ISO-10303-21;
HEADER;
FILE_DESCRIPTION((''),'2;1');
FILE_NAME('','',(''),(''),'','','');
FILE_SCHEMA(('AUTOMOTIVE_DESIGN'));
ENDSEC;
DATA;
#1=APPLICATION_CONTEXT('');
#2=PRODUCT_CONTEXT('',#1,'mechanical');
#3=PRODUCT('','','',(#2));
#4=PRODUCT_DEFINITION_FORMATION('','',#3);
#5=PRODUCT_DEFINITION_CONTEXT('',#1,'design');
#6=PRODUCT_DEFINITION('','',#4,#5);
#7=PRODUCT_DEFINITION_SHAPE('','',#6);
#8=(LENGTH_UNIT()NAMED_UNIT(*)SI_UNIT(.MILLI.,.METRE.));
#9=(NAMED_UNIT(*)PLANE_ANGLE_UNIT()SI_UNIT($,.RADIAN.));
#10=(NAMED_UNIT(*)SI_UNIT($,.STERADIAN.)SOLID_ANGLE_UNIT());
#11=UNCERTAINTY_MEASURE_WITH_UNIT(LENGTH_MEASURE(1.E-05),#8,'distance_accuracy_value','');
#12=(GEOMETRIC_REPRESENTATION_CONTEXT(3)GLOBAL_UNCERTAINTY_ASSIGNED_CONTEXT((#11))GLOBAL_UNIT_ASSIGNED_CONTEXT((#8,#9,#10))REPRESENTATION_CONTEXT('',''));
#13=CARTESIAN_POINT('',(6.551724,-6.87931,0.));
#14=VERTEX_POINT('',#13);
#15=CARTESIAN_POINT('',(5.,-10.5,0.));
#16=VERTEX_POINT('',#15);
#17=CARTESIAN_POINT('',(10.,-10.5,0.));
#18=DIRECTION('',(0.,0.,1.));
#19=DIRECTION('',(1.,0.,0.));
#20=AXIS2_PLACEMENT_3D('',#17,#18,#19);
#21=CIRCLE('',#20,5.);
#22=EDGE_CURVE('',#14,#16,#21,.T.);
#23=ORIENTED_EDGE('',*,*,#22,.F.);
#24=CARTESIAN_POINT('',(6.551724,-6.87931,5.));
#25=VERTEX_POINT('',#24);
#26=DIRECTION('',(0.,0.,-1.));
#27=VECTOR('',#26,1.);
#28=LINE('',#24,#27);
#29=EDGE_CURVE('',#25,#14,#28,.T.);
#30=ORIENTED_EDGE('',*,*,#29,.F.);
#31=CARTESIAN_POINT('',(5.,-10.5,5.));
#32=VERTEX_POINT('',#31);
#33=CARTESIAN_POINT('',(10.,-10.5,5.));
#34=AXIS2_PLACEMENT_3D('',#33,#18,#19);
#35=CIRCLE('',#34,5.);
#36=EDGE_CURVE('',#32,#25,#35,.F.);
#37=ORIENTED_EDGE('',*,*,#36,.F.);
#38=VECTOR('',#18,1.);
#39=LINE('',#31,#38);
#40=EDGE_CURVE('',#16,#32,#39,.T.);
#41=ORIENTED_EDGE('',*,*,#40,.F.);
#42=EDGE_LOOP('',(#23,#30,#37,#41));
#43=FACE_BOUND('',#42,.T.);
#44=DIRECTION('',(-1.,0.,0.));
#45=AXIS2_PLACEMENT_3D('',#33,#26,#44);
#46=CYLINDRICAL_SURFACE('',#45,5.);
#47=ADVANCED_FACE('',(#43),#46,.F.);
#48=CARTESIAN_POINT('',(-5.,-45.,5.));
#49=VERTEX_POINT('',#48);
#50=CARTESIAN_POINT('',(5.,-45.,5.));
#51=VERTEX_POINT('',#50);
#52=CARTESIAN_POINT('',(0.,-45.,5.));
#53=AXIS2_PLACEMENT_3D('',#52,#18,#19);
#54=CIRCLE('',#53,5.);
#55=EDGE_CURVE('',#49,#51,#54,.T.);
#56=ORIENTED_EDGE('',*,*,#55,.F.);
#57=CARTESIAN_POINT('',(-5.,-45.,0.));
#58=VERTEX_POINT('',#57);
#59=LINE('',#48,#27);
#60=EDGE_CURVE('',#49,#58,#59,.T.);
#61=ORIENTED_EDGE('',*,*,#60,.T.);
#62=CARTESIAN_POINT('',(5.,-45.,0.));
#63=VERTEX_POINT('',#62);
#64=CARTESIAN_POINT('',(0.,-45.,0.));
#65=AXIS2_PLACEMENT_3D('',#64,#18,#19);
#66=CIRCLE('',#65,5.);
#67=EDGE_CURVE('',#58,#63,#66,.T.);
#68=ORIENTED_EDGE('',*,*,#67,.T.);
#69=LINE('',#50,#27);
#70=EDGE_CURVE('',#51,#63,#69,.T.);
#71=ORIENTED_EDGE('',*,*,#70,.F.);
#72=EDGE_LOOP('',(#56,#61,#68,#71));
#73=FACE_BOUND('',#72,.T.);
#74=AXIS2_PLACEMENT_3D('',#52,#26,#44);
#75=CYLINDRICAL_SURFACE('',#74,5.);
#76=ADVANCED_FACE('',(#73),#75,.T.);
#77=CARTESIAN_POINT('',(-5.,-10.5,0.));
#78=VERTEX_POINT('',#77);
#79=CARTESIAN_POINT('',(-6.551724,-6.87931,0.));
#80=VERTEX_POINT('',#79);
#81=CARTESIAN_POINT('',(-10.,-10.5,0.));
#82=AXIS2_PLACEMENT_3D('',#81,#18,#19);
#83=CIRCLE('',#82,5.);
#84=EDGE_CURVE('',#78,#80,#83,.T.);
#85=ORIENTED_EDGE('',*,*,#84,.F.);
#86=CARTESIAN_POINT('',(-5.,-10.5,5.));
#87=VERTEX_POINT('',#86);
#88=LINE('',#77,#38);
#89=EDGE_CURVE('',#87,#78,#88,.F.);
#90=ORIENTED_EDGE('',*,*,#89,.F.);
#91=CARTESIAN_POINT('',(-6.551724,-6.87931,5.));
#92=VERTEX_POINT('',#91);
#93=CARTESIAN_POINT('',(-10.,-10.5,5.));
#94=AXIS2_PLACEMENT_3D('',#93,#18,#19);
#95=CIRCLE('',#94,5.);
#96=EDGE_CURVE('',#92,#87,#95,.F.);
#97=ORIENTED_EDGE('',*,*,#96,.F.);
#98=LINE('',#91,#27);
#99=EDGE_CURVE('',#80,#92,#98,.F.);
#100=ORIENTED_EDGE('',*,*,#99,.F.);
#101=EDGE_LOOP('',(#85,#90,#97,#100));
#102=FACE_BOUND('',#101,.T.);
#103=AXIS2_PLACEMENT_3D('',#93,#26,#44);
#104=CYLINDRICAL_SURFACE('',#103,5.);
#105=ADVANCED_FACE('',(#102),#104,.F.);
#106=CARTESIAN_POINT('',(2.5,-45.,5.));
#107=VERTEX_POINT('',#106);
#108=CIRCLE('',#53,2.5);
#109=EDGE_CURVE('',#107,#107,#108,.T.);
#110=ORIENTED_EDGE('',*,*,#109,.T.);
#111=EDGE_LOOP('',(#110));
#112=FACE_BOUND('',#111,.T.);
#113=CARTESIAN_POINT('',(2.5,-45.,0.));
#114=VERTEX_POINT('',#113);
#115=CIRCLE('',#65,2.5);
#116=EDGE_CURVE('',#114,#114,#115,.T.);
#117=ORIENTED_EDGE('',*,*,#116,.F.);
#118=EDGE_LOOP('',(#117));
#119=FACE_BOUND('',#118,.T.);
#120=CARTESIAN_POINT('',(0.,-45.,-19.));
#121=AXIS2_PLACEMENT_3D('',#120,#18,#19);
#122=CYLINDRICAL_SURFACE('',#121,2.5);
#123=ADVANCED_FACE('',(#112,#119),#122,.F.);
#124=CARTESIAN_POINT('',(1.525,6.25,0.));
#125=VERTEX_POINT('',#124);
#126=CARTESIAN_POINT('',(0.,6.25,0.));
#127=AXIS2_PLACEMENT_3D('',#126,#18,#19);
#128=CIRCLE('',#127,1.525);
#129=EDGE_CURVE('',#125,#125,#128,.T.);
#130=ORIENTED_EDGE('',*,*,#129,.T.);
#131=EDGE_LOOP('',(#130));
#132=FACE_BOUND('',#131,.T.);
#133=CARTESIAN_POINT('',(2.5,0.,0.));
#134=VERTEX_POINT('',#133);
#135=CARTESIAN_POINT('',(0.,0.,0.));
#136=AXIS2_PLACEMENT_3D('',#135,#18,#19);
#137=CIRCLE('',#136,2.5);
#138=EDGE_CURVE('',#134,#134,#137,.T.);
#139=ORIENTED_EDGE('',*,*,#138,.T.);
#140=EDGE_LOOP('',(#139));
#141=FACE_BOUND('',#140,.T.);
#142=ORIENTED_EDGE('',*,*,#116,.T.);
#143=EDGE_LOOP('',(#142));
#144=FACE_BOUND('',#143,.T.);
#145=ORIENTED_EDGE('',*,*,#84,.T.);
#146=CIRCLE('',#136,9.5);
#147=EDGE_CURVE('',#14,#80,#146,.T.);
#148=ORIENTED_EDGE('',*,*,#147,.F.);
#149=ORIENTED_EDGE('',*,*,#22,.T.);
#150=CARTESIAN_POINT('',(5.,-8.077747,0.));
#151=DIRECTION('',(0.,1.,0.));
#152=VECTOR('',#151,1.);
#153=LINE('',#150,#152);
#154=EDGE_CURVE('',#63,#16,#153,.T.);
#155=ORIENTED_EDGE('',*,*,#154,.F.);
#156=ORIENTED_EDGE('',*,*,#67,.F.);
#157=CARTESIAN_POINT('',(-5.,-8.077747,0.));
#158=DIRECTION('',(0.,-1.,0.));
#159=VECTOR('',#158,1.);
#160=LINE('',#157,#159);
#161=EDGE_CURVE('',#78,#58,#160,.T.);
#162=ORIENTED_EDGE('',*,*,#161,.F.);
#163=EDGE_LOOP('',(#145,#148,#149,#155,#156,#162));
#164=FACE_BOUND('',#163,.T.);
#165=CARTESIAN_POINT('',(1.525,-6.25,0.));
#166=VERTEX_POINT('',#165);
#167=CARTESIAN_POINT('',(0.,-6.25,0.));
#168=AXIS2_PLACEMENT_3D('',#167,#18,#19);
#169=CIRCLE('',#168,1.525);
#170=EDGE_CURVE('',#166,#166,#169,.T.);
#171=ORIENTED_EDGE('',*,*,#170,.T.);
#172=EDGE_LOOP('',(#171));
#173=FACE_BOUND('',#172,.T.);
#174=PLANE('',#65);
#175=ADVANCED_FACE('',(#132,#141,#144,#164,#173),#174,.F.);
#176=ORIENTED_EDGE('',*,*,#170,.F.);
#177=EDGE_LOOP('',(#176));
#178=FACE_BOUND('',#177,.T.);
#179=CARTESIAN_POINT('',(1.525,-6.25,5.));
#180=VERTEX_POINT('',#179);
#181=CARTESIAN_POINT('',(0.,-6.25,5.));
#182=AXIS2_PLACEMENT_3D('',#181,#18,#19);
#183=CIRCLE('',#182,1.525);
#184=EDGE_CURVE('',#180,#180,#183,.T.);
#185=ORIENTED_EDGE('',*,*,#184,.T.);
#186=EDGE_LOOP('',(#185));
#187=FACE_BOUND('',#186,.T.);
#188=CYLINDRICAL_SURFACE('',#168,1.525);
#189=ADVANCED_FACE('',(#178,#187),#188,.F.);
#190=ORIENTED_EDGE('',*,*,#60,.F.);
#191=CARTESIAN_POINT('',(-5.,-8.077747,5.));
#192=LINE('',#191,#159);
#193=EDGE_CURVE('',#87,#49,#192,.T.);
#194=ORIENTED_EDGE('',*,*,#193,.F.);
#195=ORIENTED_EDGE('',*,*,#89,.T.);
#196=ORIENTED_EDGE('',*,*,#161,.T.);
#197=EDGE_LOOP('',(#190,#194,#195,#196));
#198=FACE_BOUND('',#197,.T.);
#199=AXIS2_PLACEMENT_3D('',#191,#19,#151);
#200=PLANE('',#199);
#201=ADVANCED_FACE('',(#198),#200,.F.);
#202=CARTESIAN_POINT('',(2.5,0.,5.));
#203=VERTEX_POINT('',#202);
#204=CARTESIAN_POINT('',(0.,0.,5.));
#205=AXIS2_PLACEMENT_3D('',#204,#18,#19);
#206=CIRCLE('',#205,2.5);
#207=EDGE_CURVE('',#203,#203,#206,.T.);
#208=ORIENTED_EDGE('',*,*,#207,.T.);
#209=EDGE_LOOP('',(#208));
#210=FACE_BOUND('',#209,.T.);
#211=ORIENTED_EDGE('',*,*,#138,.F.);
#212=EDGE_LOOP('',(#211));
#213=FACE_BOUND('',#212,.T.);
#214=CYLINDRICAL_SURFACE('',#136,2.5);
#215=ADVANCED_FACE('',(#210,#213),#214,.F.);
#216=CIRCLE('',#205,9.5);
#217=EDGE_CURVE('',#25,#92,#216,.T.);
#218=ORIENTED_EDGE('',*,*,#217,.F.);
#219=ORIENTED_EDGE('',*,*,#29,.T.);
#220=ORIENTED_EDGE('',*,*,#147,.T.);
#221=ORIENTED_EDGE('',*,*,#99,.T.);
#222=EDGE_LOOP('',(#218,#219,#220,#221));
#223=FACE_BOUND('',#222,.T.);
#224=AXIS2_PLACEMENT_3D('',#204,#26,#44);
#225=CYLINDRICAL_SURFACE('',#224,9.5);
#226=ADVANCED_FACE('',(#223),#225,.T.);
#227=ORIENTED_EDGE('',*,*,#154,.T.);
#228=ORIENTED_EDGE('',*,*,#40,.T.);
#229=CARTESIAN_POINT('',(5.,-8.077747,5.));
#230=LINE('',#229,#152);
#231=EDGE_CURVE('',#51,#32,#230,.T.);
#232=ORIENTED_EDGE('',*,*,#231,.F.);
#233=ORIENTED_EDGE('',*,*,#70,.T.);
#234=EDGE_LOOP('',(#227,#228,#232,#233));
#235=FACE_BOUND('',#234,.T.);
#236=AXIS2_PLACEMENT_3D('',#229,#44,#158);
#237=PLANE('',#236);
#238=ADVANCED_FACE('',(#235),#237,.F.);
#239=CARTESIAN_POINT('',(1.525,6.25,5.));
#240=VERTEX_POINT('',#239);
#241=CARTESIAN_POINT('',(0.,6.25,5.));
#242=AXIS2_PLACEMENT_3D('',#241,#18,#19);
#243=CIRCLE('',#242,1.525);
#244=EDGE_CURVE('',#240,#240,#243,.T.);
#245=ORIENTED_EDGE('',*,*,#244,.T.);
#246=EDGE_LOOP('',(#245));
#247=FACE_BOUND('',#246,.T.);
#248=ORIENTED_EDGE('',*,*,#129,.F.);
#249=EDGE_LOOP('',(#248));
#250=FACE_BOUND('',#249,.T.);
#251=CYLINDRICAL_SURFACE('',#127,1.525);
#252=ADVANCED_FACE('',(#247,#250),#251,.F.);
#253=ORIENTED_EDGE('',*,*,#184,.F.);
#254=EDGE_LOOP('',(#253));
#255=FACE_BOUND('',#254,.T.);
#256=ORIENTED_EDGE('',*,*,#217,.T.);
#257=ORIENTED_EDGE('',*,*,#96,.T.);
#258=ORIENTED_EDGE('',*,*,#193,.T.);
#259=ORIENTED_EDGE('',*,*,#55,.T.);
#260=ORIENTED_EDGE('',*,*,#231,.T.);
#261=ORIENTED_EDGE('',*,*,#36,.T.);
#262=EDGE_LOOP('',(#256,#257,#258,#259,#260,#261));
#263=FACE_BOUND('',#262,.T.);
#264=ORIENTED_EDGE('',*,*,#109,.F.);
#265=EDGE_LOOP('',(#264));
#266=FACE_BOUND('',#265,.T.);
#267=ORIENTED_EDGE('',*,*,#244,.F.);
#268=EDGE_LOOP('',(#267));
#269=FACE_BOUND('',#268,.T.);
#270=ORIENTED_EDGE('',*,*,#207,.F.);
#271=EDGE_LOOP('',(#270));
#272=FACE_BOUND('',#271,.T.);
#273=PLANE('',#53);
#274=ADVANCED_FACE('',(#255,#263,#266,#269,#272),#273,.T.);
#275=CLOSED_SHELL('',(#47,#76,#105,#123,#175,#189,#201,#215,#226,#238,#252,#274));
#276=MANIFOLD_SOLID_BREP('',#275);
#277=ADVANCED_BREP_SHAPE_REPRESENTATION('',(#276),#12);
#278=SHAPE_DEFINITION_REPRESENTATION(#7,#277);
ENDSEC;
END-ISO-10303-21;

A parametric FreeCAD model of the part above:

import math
import FreeCAD as App
import Part
import Sketcher

V = App.Vector
Q = App.Units.Quantity


def edges_at(feature, points):
    """Names of the edges that pass closest to the given points."""
    edges = feature.Shape.Edges
    near = lambda p: min(range(len(edges)), key=lambda i: edges[i].distToShape(Part.Vertex(*p))[0])
    return sorted({f"Edge{near(p) + 1}" for p in points})

doc = App.newDocument("Part")
params = doc.addObject("Spreadsheet::Sheet", "Params")
for row, (alias, value) in enumerate([
    ("sketch1_radius", "5 mm"),
    ("sketch1_radius2", "9.5 mm"),
    ("pad1_length", "5 mm"),
    ("sketch2_diameter", "5 mm"),
    ("pocket1_length", "24 mm"),
    ("sketch3_diameter", "3.05 mm"),
    ("pocket2_length", "5 mm"),
    ("sketch4_diameter", "5 mm"),
    ("pocket3_length", "5 mm"),
    ("fillet_radius", "5 mm"),
], start=1):
    params.set(f"A{row}", alias)
    params.set(f"B{row}", "=" + value)
    params.setAlias(f"B{row}", alias)

body = doc.addObject("PartDesign::Body", "Body")

# Sketch on XY plane
sketch1 = body.newObject("Sketcher::SketchObject", "Sketch")
sketch1.AttachmentSupport = (doc.getObject("XY_Plane"), [""])
sketch1.MapMode = "FlatFace"
sketch1.addGeometry([
    Part.LineSegment(V(5, -45, 0), V(5, -8.077747, 0)),
    Part.ArcOfCircle(Part.Circle(V(0, 0, 0), V(0, 0, 1), 9.5), math.radians(-58.243136), math.radians(238.243136)),
    Part.LineSegment(V(-5, -8.077747, 0), V(-5, -45, 0)),
    Part.ArcOfCircle(Part.Circle(V(0, -45, 0), V(0, 0, 1), 5), math.radians(180), math.radians(360)),
], False)
sketch1.addConstraint([
    Sketcher.Constraint("Coincident", 0, 2, 1, 1),
    Sketcher.Constraint("Coincident", 1, 2, 2, 1),
    Sketcher.Constraint("Tangent", 2, 2, 3, 1),
    Sketcher.Constraint("Tangent", 3, 2, 0, 1),
    Sketcher.Constraint("Vertical", 0),
    Sketcher.Constraint("Vertical", 2),
    Sketcher.Constraint("Coincident", 1, 3, -1, 1),
    Sketcher.Constraint("PointOnObject", 3, 3, -2),
    Sketcher.Constraint("Radius", 3, Q("5 mm")),
    Sketcher.Constraint("Radius", 1, Q("9.5 mm")),
    Sketcher.Constraint("DistanceY", 3, 3, -1, 1, Q("45 mm")),
])
sketch1.setExpression("Constraints[8]", "Params.sketch1_radius")
sketch1.setExpression("Constraints[9]", "Params.sketch1_radius2")
pad1 = body.newObject("PartDesign::Pad", "Pad")
pad1.Profile = sketch1
pad1.setExpression("Length", "Params.pad1_length")

# Sketch on XY plane
sketch2 = body.newObject("Sketcher::SketchObject", "Sketch001")
sketch2.AttachmentSupport = (doc.getObject("XY_Plane"), [""])
sketch2.MapMode = "FlatFace"
sketch2.AttachmentOffset = App.Placement(V(0, 0, 5), App.Rotation())
sketch2.addGeometry(Part.Circle(V(0, -45, 0), V(0, 0, 1), 2.5), False)
sketch2.addConstraint([
    Sketcher.Constraint("PointOnObject", 0, 3, -2),
    Sketcher.Constraint("Diameter", 0, Q("5 mm")),
    Sketcher.Constraint("DistanceY", 0, 3, -1, 1, Q("45 mm")),
])
sketch2.setExpression("Constraints[1]", "Params.sketch2_diameter")
pocket1 = body.newObject("PartDesign::Pocket", "Pocket")
pocket1.Profile = sketch2
pocket1.setExpression("Length", "Params.pocket1_length")

# Sketch on XY plane
sketch3 = body.newObject("Sketcher::SketchObject", "Sketch002")
sketch3.AttachmentSupport = (doc.getObject("XY_Plane"), [""])
sketch3.MapMode = "FlatFace"
sketch3.AttachmentOffset = App.Placement(V(0, 0, 5), App.Rotation())
sketch3.addGeometry([
    Part.Circle(V(0, 6.25, 0), V(0, 0, 1), 1.525),
    Part.Circle(V(0, -6.25, 0), V(0, 0, 1), 1.525),
], False)
sketch3.addConstraint([
    Sketcher.Constraint("Equal", 0, 1),
    Sketcher.Constraint("Symmetric", 0, 3, 1, 3, -1, 1),
    Sketcher.Constraint("PointOnObject", 0, 3, -2),
    Sketcher.Constraint("Diameter", 0, Q("3.05 mm")),
    Sketcher.Constraint("DistanceY", 1, 3, 0, 3, Q("12.5 mm")),
])
sketch3.setExpression("Constraints[3]", "Params.sketch3_diameter")
pocket2 = body.newObject("PartDesign::Pocket", "Pocket001")
pocket2.Profile = sketch3
pocket2.setExpression("Length", "Params.pocket2_length")

# Sketch on XY plane
sketch4 = body.newObject("Sketcher::SketchObject", "Sketch003")
sketch4.AttachmentSupport = (doc.getObject("XY_Plane"), [""])
sketch4.MapMode = "FlatFace"
sketch4.AttachmentOffset = App.Placement(V(0, 0, 5), App.Rotation())
sketch4.addGeometry(Part.Circle(V(0, 0, 0), V(0, 0, 1), 2.5), False)
sketch4.addConstraint([
    Sketcher.Constraint("Coincident", 0, 3, -1, 1),
    Sketcher.Constraint("Diameter", 0, Q("5 mm")),
])
sketch4.setExpression("Constraints[1]", "Params.sketch4_diameter")
pocket3 = body.newObject("PartDesign::Pocket", "Pocket002")
pocket3.Profile = sketch4
pocket3.setExpression("Length", "Params.pocket3_length")
doc.recompute()

fillet = body.newObject("PartDesign::Fillet", "Fillet")
fillet.Base = (pocket3, edges_at(pocket3, [(-5, -8.078, 2.5), (5, -8.078, 2.5)]))
fillet.setExpression("Radius", "Params.fillet_radius")

doc.recompute()
